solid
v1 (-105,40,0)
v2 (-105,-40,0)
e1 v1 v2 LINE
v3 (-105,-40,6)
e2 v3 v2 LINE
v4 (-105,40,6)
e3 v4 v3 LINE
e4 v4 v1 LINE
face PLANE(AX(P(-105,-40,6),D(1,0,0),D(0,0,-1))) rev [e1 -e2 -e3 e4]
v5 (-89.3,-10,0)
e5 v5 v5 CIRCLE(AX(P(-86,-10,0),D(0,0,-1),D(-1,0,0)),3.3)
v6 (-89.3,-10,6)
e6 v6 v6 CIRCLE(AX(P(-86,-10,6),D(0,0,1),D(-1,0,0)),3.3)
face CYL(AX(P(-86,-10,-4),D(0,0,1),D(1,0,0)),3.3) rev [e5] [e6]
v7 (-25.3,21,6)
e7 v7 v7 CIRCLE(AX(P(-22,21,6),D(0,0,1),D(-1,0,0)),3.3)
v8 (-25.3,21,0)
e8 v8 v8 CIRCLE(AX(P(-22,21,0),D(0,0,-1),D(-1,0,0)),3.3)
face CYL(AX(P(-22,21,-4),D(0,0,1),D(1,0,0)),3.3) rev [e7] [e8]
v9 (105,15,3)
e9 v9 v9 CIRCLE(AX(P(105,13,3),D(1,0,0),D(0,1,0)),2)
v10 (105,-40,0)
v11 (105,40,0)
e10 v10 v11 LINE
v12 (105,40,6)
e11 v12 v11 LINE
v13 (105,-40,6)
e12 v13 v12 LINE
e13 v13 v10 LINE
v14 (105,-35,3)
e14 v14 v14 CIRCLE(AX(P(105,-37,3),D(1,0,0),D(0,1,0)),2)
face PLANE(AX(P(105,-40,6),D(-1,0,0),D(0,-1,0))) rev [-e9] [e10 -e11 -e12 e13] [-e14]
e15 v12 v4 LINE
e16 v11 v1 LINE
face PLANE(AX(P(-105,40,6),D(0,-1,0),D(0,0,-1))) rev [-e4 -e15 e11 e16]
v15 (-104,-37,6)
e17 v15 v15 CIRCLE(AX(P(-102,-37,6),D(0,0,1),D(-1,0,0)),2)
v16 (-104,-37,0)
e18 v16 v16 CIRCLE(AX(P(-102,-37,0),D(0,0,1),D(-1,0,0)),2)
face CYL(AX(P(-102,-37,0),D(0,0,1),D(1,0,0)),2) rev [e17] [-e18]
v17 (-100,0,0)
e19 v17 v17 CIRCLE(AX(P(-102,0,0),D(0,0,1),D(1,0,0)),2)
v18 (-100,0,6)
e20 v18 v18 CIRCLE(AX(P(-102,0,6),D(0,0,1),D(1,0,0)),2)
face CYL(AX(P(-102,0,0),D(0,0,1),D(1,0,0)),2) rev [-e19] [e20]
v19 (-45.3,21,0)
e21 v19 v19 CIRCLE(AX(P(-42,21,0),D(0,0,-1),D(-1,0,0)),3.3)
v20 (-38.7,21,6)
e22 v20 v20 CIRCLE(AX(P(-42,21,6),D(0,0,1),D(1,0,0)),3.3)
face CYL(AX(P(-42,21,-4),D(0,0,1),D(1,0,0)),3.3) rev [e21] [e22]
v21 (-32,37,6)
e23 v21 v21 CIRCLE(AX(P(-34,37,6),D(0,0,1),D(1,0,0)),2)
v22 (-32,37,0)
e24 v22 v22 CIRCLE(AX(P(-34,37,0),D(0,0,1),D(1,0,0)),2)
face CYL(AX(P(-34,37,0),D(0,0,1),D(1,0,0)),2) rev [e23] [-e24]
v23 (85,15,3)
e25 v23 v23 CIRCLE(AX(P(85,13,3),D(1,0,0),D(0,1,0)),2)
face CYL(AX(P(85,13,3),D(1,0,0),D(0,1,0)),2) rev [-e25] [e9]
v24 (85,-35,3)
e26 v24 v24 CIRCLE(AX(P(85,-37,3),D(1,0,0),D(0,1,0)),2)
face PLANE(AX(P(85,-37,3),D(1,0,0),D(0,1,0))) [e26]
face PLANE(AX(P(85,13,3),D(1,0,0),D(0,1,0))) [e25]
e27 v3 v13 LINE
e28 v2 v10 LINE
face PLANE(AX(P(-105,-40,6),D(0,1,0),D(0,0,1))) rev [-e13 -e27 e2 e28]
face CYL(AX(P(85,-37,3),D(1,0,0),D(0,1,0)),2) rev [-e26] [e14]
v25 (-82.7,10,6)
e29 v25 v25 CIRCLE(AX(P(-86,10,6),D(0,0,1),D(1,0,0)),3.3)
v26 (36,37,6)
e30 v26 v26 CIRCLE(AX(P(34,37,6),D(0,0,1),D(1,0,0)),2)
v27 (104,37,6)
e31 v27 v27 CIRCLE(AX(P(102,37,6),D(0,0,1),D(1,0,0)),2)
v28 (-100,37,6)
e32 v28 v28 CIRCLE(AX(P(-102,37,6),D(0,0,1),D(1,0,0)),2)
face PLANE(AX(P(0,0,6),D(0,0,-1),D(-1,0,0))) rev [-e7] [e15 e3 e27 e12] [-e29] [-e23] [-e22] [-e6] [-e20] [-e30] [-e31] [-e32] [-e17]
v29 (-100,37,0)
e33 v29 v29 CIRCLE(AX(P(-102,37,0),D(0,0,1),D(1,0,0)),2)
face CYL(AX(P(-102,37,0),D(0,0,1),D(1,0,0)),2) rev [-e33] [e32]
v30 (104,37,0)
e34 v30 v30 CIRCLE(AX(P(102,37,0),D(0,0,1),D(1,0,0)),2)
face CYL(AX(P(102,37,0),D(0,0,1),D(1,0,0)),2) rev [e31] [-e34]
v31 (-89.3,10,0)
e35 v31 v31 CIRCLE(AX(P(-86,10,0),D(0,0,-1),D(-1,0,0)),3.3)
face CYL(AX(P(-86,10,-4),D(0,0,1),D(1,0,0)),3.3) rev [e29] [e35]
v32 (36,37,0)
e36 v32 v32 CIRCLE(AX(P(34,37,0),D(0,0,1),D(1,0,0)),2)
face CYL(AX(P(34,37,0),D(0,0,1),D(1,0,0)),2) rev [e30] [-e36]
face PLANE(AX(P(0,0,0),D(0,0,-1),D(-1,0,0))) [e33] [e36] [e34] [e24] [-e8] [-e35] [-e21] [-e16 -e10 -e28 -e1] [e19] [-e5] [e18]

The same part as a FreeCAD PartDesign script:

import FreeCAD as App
import Part
import Sketcher
Q = App.Units.Quantity

doc = App.newDocument("Part")
params = doc.addObject("Spreadsheet::Sheet", "Params")
for row, (alias, value) in enumerate([
    ("sketch1_width", "210 mm"),
    ("sketch1_height", "80 mm"),
    ("pad1_length", "6 mm"),
    ("sketch2_diameter", "4 mm"),
    ("pocket1_length", "6 mm"),
    ("sketch3_diameter", "4 mm"),
    ("pocket2_length", "20 mm"),
    ("sketch4_diameter", "6.6 mm"),
    ("pocket3_length", "10 mm"),
    ("sketch5_diameter", "6.6 mm"),
    ("pocket4_length", "10 mm"),
], start=1):
    params.set(f"A{row}", alias)
    params.set(f"B{row}", "=" + value)
    params.setAlias(f"B{row}", alias)

body = doc.addObject("PartDesign::Body", "Body")

sketch1 = doc.addObject("Sketcher::SketchObject", "Sketch")
body.addObject(sketch1)
sketch1.AttachmentSupport = (doc.XY_Plane, [""])
sketch1.MapMode = "FlatFace"
sketch1.addGeometry(Part.LineSegment(App.Vector(-105, 40, 0), App.Vector(-105, -40, 0)), False)
sketch1.addGeometry(Part.LineSegment(App.Vector(-105, -40, 0), App.Vector(105, -40, 0)), False)
sketch1.addGeometry(Part.LineSegment(App.Vector(105, -40, 0), App.Vector(105, 40, 0)), False)
sketch1.addGeometry(Part.LineSegment(App.Vector(105, 40, 0), App.Vector(-105, 40, 0)), False)
sketch1.addConstraint(Sketcher.Constraint("Coincident", 0, 2, 1, 1))
sketch1.addConstraint(Sketcher.Constraint("Coincident", 1, 2, 2, 1))
sketch1.addConstraint(Sketcher.Constraint("Coincident", 2, 2, 3, 1))
sketch1.addConstraint(Sketcher.Constraint("Coincident", 3, 2, 0, 1))
sketch1.addConstraint(Sketcher.Constraint("Vertical", 0))
sketch1.addConstraint(Sketcher.Constraint("Horizontal", 1))
sketch1.addConstraint(Sketcher.Constraint("Vertical", 2))
sketch1.addConstraint(Sketcher.Constraint("Horizontal", 3))
sketch1.addConstraint(Sketcher.Constraint("Symmetric", 0, 2, 2, 2, -1, 1))
sketch1.addConstraint(Sketcher.Constraint("DistanceX", 1, 1, 1, 2, Q("210 mm")))
sketch1.addConstraint(Sketcher.Constraint("DistanceY", 0, 2, 0, 1, Q("80 mm")))
sketch1.setExpression("Constraints[9]", "Params.sketch1_width")
sketch1.setExpression("Constraints[10]", "Params.sketch1_height")
pad1 = doc.addObject("PartDesign::Pad", "Pad")
body.addObject(pad1)
pad1.Profile = sketch1
pad1.setExpression("Length", "Params.pad1_length")

sketch2 = doc.addObject("Sketcher::SketchObject", "Sketch001")
body.addObject(sketch2)
sketch2.AttachmentSupport = (doc.XY_Plane, [""])
sketch2.MapMode = "FlatFace"
sketch2.AttachmentOffset = App.Placement(App.Vector(0, 0, 6), App.Rotation())
sketch2.addGeometry(Part.Circle(App.Vector(-102, 0, 0), App.Vector(0, 0, 1), 2), False)
sketch2.addGeometry(Part.Circle(App.Vector(-102, 37, 0), App.Vector(0, 0, 1), 2), False)
sketch2.addGeometry(Part.Circle(App.Vector(-102, -37, 0), App.Vector(0, 0, 1), 2), False)
sketch2.addGeometry(Part.Circle(App.Vector(-34, 37, 0), App.Vector(0, 0, 1), 2), False)
sketch2.addGeometry(Part.Circle(App.Vector(34, 37, 0), App.Vector(0, 0, 1), 2), False)
sketch2.addGeometry(Part.Circle(App.Vector(102, 37, 0), App.Vector(0, 0, 1), 2), False)
sketch2.addConstraint(Sketcher.Constraint("Equal", 0, 1))
sketch2.addConstraint(Sketcher.Constraint("Equal", 1, 2))
sketch2.addConstraint(Sketcher.Constraint("Equal", 2, 3))
sketch2.addConstraint(Sketcher.Constraint("Equal", 3, 4))
sketch2.addConstraint(Sketcher.Constraint("Equal", 4, 5))
sketch2.addConstraint(Sketcher.Constraint("Symmetric", 2, 3, 5, 3, -1, 1))
sketch2.addConstraint(Sketcher.Constraint("Symmetric", 3, 3, 4, 3, -2))
sketch2.addConstraint(Sketcher.Constraint("Symmetric", 1, 3, 5, 3, -2))
sketch2.addConstraint(Sketcher.Constraint("PointOnObject", 0, 3, -1))
sketch2.addConstraint(Sketcher.Constraint("Horizontal", 1, 3, 3, 3))
sketch2.addConstraint(Sketcher.Constraint("Vertical", 0, 3, 1, 3))
sketch2.addConstraint(Sketcher.Constraint("Diameter", 0, Q("4 mm")))
sketch2.addConstraint(Sketcher.Constraint("DistanceX", 0, 3, -1, 1, Q("102 mm")))
sketch2.addConstraint(Sketcher.Constraint("DistanceY", -1, 1, 1, 3, Q("37 mm")))
sketch2.addConstraint(Sketcher.Constraint("DistanceX", 3, 3, -1, 1, Q("34 mm")))
sketch2.setExpression("Constraints[11]", "Params.sketch2_diameter")
pocket1 = doc.addObject("PartDesign::Pocket", "Pocket")
body.addObject(pocket1)
pocket1.Profile = sketch2
pocket1.setExpression("Length", "Params.pocket1_length")

sketch3 = doc.addObject("Sketcher::SketchObject", "Sketch002")
body.addObject(sketch3)
sketch3.AttachmentSupport = (doc.YZ_Plane, [""])
sketch3.MapMode = "FlatFace"
sketch3.AttachmentOffset = App.Placement(App.Vector(0, 0, 105), App.Rotation())
sketch3.addGeometry(Part.Circle(App.Vector(-37, 3, 0), App.Vector(0, 0, 1), 2), False)
sketch3.addGeometry(Part.Circle(App.Vector(13, 3, 0), App.Vector(0, 0, 1), 2), False)
sketch3.addConstraint(Sketcher.Constraint("Equal", 0, 1))
sketch3.addConstraint(Sketcher.Constraint("Horizontal", 0, 3, 1, 3))
sketch3.addConstraint(Sketcher.Constraint("Diameter", 0, Q("4 mm")))
sketch3.addConstraint(Sketcher.Constraint("DistanceX", 0, 3, -1, 1, Q("37 mm")))
sketch3.addConstraint(Sketcher.Constraint("DistanceY", -1, 1, 0, 3, Q("3 mm")))
sketch3.addConstraint(Sketcher.Constraint("DistanceX", -1, 1, 1, 3, Q("13 mm")))
sketch3.setExpression("Constraints[2]", "Params.sketch3_diameter")
pocket2 = doc.addObject("PartDesign::Pocket", "Pocket001")
body.addObject(pocket2)
pocket2.Profile = sketch3
pocket2.setExpression("Length", "Params.pocket2_length")

sketch4 = doc.addObject("Sketcher::SketchObject", "Sketch003")
body.addObject(sketch4)
sketch4.AttachmentSupport = (doc.XY_Plane, [""])
sketch4.MapMode = "FlatFace"
sketch4.AttachmentOffset = App.Placement(App.Vector(0, 0, 6), App.Rotation())
sketch4.addGeometry(Part.Circle(App.Vector(-86, 10, 0), App.Vector(0, 0, 1), 3.3), False)
sketch4.addGeometry(Part.Circle(App.Vector(-86, -10, 0), App.Vector(0, 0, 1), 3.3), False)
sketch4.addConstraint(Sketcher.Constraint("Equal", 0, 1))
sketch4.addConstraint(Sketcher.Constraint("Symmetric", 0, 3, 1, 3, -1))
sketch4.addConstraint(Sketcher.Constraint("Diameter", 0, Q("6.6 mm")))
sketch4.addConstraint(Sketcher.Constraint("DistanceX", 0, 3, -1, 1, Q("86 mm")))
sketch4.addConstraint(Sketcher.Constraint("DistanceY", -1, 1, 0, 3, Q("10 mm")))
sketch4.setExpression("Constraints[2]", "Params.sketch4_diameter")
pocket3 = doc.addObject("PartDesign::Pocket", "Pocket002")
body.addObject(pocket3)
pocket3.Profile = sketch4
pocket3.setExpression("Length", "Params.pocket3_length")

sketch5 = doc.addObject("Sketcher::SketchObject", "Sketch004")
body.addObject(sketch5)
sketch5.AttachmentSupport = (doc.XY_Plane, [""])
sketch5.MapMode = "FlatFace"
sketch5.AttachmentOffset = App.Placement(App.Vector(0, 0, 6), App.Rotation())
sketch5.addGeometry(Part.Circle(App.Vector(-42, 21, 0), App.Vector(0, 0, 1), 3.3), False)
sketch5.addGeometry(Part.Circle(App.Vector(-22, 21, 0), App.Vector(0, 0, 1), 3.3), False)
sketch5.addConstraint(Sketcher.Constraint("Equal", 0, 1))
sketch5.addConstraint(Sketcher.Constraint("Horizontal", 0, 3, 1, 3))
sketch5.addConstraint(Sketcher.Constraint("Diameter", 0, Q("6.6 mm")))
sketch5.addConstraint(Sketcher.Constraint("DistanceX", 0, 3, -1, 1, Q("42 mm")))
sketch5.addConstraint(Sketcher.Constraint("DistanceY", -1, 1, 0, 3, Q("21 mm")))
sketch5.addConstraint(Sketcher.Constraint("DistanceX", 1, 3, -1, 1, Q("22 mm")))
sketch5.setExpression("Constraints[2]", "Params.sketch5_diameter")
pocket4 = doc.addObject("PartDesign::Pocket", "Pocket003")
body.addObject(pocket4)
pocket4.Profile = sketch5
pocket4.setExpression("Length", "Params.pocket4_length")

doc.recompute()
